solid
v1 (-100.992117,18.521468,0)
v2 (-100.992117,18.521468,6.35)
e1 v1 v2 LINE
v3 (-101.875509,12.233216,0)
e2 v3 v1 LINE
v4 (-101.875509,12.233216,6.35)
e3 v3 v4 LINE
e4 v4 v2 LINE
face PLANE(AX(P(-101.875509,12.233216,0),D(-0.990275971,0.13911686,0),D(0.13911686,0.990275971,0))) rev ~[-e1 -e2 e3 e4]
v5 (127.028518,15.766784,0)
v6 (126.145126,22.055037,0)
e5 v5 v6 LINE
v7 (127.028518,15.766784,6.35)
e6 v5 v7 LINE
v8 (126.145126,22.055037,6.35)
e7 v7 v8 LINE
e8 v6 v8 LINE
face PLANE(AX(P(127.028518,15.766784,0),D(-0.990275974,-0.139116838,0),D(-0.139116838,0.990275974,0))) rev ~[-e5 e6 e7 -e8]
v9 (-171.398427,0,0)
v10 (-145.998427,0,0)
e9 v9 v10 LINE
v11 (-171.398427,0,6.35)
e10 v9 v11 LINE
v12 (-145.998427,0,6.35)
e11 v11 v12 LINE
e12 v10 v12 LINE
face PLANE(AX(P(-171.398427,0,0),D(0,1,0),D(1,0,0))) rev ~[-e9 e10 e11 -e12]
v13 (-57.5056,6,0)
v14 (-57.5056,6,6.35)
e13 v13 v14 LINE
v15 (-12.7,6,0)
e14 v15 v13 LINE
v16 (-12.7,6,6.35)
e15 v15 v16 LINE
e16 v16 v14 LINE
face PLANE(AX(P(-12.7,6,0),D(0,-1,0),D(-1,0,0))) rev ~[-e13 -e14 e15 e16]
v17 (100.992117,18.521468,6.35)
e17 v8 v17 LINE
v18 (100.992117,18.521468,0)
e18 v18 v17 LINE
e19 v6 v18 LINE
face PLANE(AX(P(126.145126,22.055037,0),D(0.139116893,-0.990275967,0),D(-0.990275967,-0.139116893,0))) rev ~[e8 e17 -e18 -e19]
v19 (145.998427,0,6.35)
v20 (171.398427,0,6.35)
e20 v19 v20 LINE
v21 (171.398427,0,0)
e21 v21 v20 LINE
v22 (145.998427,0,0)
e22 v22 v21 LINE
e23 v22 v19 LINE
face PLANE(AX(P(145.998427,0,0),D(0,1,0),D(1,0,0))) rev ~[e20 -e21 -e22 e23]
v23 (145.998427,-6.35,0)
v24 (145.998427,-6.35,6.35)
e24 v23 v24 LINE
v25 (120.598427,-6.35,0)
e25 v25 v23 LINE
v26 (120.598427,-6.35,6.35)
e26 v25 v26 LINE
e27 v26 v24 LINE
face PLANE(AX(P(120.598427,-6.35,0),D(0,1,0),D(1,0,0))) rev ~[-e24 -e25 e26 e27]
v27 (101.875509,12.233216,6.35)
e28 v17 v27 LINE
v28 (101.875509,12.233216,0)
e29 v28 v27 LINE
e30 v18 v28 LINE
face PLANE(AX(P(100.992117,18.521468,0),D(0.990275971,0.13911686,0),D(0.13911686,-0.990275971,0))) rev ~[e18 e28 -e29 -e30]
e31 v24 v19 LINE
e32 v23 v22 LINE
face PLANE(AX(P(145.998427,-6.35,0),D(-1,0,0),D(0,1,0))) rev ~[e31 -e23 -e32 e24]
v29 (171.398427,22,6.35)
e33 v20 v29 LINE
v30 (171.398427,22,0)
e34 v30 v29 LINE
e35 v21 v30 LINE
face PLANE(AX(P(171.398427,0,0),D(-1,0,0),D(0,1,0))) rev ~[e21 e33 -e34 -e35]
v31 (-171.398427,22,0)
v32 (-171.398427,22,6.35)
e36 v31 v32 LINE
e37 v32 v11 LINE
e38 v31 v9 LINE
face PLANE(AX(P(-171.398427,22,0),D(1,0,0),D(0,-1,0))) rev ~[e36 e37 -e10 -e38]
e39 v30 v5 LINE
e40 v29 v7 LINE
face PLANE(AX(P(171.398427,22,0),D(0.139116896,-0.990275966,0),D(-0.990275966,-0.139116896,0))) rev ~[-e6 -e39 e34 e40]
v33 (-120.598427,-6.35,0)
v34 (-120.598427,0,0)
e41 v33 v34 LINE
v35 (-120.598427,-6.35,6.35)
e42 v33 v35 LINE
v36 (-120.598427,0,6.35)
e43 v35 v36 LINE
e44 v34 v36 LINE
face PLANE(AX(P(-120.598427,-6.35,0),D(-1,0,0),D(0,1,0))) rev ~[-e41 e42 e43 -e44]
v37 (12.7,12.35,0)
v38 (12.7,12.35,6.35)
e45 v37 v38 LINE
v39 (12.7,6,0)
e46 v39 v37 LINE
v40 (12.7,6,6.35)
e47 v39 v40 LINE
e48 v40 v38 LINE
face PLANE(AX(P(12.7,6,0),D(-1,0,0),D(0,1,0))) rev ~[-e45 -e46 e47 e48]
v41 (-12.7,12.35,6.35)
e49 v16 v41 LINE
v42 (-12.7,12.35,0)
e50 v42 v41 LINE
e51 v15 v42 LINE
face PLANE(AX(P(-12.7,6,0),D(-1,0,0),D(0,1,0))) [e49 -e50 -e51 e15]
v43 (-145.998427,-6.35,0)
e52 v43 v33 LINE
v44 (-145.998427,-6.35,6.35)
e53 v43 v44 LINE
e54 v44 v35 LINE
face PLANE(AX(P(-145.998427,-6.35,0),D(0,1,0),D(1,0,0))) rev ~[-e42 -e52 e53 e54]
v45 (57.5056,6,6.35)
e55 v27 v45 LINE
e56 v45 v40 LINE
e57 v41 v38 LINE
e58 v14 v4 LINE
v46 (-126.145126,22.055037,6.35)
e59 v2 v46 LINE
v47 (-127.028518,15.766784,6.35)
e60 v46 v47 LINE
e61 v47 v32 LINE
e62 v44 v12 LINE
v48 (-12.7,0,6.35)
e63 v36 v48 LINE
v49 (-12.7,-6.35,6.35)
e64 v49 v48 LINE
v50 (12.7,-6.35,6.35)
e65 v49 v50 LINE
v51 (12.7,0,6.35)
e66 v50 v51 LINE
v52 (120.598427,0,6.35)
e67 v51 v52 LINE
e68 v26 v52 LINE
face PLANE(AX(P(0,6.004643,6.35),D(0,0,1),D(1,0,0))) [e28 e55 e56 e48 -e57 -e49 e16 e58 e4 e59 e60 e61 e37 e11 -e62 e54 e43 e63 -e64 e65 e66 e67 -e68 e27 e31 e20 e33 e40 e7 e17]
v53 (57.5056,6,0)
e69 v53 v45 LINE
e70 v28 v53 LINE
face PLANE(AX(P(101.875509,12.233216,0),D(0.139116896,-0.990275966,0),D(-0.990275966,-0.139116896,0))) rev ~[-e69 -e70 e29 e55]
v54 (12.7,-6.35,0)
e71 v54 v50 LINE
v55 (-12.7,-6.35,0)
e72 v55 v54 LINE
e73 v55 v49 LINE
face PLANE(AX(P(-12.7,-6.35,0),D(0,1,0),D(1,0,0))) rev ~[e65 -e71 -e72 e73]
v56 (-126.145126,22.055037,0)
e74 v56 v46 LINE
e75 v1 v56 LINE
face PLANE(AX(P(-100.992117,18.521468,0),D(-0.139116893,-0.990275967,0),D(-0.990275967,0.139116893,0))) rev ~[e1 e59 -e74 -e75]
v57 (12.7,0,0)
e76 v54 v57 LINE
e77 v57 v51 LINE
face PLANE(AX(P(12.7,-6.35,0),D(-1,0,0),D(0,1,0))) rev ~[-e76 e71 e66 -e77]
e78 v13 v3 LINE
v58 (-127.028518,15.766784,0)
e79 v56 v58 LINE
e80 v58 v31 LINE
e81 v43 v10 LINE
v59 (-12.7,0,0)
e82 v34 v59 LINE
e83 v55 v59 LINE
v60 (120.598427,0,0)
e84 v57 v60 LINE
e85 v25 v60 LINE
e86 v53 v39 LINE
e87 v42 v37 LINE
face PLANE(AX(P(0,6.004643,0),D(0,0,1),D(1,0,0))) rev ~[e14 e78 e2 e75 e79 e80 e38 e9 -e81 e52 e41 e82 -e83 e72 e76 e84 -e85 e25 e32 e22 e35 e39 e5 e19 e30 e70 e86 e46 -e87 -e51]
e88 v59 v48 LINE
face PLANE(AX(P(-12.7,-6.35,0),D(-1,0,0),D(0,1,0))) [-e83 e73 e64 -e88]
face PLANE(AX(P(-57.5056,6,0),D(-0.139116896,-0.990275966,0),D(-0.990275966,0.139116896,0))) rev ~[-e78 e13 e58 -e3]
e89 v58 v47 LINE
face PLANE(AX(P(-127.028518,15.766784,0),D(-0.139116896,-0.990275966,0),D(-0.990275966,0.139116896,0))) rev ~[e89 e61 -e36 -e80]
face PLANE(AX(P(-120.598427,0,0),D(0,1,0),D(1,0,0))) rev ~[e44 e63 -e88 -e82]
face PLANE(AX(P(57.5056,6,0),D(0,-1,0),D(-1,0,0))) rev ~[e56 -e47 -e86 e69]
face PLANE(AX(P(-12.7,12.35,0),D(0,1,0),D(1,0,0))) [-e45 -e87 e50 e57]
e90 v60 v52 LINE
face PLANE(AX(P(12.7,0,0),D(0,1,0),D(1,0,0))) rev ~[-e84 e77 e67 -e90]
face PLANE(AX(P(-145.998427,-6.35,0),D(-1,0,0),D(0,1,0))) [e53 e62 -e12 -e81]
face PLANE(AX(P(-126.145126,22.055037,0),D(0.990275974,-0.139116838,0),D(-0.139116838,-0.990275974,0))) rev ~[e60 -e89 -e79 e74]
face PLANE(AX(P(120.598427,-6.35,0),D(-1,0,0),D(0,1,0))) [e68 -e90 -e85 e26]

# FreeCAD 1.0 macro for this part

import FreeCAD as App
import Part
import Sketcher
Q = App.Units.Quantity


def add_polygon(sketch, points):
    """Adds a closed chain of lines whose ends are joined by coincident constraints."""
    first, n = sketch.GeometryCount, len(points)
    for a, b in zip(points, points[1:] + points[:1]):
        sketch.addGeometry(Part.LineSegment(App.Vector(*a, 0), App.Vector(*b, 0)), False)
    for i in range(n):
        sketch.addConstraint(Sketcher.Constraint("Coincident", first + i, 2, first + (i + 1) % n, 1))

doc = App.newDocument("Part")
body = doc.addObject("PartDesign::Body", "Body")

sketch1 = body.newObject("Sketcher::SketchObject", "Sketch")
sketch1.AttachmentSupport = (doc.getObject("XY_Plane"), [""])
sketch1.MapMode = "FlatFace"
add_polygon(sketch1, [(-171, 22), (-171, 0), (-146, 0), (-146, -6), (-121, -6), (-121, 0), (-13, 0), (-13, -6), (13, -6), (13, 0), (121, 0), (121, -6), (146, -6), (146, 0), (171, 0), (171, 22), (127, 16), (126, 22), (101, 19), (102, 12), (58, 6), (13, 6), (13, 12), (-13, 12), (-13, 6), (-58, 6), (-102, 12), (-101, 19), (-126, 22), (-127, 16)])
sketch1.addConstraint([
    Sketcher.Constraint("Vertical", 0),
    Sketcher.Constraint("Horizontal", 1),
    Sketcher.Constraint("Vertical", 2),
    Sketcher.Constraint("Horizontal", 3),
    Sketcher.Constraint("Vertical", 4),
    Sketcher.Constraint("Horizontal", 5),
    Sketcher.Constraint("Vertical", 6),
    Sketcher.Constraint("Horizontal", 7),
    Sketcher.Constraint("Vertical", 8),
    Sketcher.Constraint("Horizontal", 9),
    Sketcher.Constraint("Vertical", 10),
    Sketcher.Constraint("Horizontal", 11),
    Sketcher.Constraint("Vertical", 12),
    Sketcher.Constraint("Horizontal", 13),
    Sketcher.Constraint("Vertical", 14),
    Sketcher.Constraint("Horizontal", 20),
    Sketcher.Constraint("Vertical", 21),
    Sketcher.Constraint("Horizontal", 22),
    Sketcher.Constraint("Vertical", 23),
    Sketcher.Constraint("Horizontal", 24),
    Sketcher.Constraint("Symmetric", 5, 2, 8, 2, -1, 1),
    Sketcher.Constraint("Symmetric", 1, 2, 12, 2, -1, 1),
    Sketcher.Constraint("Symmetric", 4, 2, 9, 2, -2),
    Sketcher.Constraint("Symmetric", 0, 2, 13, 2, -2),
    Sketcher.Constraint("Symmetric", 20, 2, 23, 2, -2),
    Sketcher.Constraint("Symmetric", 18, 2, 25, 2, -2),
    Sketcher.Constraint("Symmetric", 17, 2, 26, 2, -2),
    Sketcher.Constraint("Symmetric", 16, 2, 27, 2, -2),
    Sketcher.Constraint("Symmetric", 15, 2, 28, 2, -2),
    Sketcher.Constraint("Perpendicular", 15, 16),
    Sketcher.Constraint("Perpendicular", 16, 17),
    Sketcher.Constraint("Perpendicular", 17, 18),
    Sketcher.Constraint("Perpendicular", 18, 19),
    Sketcher.Constraint("Perpendicular", 25, 26),
    Sketcher.Constraint("Perpendicular", 28, 29),
    Sketcher.Constraint("Horizontal", 3, 2, 6, 2),
    Sketcher.Constraint("Horizontal", 7, 2, 10, 2),
    Sketcher.Constraint("Vertical", 8, 2, 20, 2),
    Sketcher.Constraint("Equal", 1, 3),
    Sketcher.Constraint("Equal", 3, 7),
    Sketcher.Constraint("Equal", 12, 21),
    Sketcher.Constraint("Equal", 16, 18),
    Sketcher.Constraint("Equal", 15, 19),
    Sketcher.Constraint("DistanceX", 1, 1, 1, 2, Q("1 in")),
    Sketcher.Constraint("Distance", 17, Q("1 in")),
    Sketcher.Constraint("DistanceY", 2, 2, 2, 1, Q("0.25 in")),
    Sketcher.Constraint("Distance", 16, Q("0.25 in")),
    Sketcher.Constraint("DistanceX", 20, 2, 20, 1, Q("1.764 in")),
    Sketcher.Constraint("Distance", 15, Q("1.764 in")),
    Sketcher.Constraint("DistanceY", 0, 2, 0, 1, Q("22 mm")),
    Sketcher.Constraint("DistanceY", -1, 1, 19, 2, Q("6 mm")),
])
pad1 = body.newObject("PartDesign::Pad", "Pad")
pad1.Profile = sketch1
pad1.Length = Q("0.25 in")

doc.recompute()
